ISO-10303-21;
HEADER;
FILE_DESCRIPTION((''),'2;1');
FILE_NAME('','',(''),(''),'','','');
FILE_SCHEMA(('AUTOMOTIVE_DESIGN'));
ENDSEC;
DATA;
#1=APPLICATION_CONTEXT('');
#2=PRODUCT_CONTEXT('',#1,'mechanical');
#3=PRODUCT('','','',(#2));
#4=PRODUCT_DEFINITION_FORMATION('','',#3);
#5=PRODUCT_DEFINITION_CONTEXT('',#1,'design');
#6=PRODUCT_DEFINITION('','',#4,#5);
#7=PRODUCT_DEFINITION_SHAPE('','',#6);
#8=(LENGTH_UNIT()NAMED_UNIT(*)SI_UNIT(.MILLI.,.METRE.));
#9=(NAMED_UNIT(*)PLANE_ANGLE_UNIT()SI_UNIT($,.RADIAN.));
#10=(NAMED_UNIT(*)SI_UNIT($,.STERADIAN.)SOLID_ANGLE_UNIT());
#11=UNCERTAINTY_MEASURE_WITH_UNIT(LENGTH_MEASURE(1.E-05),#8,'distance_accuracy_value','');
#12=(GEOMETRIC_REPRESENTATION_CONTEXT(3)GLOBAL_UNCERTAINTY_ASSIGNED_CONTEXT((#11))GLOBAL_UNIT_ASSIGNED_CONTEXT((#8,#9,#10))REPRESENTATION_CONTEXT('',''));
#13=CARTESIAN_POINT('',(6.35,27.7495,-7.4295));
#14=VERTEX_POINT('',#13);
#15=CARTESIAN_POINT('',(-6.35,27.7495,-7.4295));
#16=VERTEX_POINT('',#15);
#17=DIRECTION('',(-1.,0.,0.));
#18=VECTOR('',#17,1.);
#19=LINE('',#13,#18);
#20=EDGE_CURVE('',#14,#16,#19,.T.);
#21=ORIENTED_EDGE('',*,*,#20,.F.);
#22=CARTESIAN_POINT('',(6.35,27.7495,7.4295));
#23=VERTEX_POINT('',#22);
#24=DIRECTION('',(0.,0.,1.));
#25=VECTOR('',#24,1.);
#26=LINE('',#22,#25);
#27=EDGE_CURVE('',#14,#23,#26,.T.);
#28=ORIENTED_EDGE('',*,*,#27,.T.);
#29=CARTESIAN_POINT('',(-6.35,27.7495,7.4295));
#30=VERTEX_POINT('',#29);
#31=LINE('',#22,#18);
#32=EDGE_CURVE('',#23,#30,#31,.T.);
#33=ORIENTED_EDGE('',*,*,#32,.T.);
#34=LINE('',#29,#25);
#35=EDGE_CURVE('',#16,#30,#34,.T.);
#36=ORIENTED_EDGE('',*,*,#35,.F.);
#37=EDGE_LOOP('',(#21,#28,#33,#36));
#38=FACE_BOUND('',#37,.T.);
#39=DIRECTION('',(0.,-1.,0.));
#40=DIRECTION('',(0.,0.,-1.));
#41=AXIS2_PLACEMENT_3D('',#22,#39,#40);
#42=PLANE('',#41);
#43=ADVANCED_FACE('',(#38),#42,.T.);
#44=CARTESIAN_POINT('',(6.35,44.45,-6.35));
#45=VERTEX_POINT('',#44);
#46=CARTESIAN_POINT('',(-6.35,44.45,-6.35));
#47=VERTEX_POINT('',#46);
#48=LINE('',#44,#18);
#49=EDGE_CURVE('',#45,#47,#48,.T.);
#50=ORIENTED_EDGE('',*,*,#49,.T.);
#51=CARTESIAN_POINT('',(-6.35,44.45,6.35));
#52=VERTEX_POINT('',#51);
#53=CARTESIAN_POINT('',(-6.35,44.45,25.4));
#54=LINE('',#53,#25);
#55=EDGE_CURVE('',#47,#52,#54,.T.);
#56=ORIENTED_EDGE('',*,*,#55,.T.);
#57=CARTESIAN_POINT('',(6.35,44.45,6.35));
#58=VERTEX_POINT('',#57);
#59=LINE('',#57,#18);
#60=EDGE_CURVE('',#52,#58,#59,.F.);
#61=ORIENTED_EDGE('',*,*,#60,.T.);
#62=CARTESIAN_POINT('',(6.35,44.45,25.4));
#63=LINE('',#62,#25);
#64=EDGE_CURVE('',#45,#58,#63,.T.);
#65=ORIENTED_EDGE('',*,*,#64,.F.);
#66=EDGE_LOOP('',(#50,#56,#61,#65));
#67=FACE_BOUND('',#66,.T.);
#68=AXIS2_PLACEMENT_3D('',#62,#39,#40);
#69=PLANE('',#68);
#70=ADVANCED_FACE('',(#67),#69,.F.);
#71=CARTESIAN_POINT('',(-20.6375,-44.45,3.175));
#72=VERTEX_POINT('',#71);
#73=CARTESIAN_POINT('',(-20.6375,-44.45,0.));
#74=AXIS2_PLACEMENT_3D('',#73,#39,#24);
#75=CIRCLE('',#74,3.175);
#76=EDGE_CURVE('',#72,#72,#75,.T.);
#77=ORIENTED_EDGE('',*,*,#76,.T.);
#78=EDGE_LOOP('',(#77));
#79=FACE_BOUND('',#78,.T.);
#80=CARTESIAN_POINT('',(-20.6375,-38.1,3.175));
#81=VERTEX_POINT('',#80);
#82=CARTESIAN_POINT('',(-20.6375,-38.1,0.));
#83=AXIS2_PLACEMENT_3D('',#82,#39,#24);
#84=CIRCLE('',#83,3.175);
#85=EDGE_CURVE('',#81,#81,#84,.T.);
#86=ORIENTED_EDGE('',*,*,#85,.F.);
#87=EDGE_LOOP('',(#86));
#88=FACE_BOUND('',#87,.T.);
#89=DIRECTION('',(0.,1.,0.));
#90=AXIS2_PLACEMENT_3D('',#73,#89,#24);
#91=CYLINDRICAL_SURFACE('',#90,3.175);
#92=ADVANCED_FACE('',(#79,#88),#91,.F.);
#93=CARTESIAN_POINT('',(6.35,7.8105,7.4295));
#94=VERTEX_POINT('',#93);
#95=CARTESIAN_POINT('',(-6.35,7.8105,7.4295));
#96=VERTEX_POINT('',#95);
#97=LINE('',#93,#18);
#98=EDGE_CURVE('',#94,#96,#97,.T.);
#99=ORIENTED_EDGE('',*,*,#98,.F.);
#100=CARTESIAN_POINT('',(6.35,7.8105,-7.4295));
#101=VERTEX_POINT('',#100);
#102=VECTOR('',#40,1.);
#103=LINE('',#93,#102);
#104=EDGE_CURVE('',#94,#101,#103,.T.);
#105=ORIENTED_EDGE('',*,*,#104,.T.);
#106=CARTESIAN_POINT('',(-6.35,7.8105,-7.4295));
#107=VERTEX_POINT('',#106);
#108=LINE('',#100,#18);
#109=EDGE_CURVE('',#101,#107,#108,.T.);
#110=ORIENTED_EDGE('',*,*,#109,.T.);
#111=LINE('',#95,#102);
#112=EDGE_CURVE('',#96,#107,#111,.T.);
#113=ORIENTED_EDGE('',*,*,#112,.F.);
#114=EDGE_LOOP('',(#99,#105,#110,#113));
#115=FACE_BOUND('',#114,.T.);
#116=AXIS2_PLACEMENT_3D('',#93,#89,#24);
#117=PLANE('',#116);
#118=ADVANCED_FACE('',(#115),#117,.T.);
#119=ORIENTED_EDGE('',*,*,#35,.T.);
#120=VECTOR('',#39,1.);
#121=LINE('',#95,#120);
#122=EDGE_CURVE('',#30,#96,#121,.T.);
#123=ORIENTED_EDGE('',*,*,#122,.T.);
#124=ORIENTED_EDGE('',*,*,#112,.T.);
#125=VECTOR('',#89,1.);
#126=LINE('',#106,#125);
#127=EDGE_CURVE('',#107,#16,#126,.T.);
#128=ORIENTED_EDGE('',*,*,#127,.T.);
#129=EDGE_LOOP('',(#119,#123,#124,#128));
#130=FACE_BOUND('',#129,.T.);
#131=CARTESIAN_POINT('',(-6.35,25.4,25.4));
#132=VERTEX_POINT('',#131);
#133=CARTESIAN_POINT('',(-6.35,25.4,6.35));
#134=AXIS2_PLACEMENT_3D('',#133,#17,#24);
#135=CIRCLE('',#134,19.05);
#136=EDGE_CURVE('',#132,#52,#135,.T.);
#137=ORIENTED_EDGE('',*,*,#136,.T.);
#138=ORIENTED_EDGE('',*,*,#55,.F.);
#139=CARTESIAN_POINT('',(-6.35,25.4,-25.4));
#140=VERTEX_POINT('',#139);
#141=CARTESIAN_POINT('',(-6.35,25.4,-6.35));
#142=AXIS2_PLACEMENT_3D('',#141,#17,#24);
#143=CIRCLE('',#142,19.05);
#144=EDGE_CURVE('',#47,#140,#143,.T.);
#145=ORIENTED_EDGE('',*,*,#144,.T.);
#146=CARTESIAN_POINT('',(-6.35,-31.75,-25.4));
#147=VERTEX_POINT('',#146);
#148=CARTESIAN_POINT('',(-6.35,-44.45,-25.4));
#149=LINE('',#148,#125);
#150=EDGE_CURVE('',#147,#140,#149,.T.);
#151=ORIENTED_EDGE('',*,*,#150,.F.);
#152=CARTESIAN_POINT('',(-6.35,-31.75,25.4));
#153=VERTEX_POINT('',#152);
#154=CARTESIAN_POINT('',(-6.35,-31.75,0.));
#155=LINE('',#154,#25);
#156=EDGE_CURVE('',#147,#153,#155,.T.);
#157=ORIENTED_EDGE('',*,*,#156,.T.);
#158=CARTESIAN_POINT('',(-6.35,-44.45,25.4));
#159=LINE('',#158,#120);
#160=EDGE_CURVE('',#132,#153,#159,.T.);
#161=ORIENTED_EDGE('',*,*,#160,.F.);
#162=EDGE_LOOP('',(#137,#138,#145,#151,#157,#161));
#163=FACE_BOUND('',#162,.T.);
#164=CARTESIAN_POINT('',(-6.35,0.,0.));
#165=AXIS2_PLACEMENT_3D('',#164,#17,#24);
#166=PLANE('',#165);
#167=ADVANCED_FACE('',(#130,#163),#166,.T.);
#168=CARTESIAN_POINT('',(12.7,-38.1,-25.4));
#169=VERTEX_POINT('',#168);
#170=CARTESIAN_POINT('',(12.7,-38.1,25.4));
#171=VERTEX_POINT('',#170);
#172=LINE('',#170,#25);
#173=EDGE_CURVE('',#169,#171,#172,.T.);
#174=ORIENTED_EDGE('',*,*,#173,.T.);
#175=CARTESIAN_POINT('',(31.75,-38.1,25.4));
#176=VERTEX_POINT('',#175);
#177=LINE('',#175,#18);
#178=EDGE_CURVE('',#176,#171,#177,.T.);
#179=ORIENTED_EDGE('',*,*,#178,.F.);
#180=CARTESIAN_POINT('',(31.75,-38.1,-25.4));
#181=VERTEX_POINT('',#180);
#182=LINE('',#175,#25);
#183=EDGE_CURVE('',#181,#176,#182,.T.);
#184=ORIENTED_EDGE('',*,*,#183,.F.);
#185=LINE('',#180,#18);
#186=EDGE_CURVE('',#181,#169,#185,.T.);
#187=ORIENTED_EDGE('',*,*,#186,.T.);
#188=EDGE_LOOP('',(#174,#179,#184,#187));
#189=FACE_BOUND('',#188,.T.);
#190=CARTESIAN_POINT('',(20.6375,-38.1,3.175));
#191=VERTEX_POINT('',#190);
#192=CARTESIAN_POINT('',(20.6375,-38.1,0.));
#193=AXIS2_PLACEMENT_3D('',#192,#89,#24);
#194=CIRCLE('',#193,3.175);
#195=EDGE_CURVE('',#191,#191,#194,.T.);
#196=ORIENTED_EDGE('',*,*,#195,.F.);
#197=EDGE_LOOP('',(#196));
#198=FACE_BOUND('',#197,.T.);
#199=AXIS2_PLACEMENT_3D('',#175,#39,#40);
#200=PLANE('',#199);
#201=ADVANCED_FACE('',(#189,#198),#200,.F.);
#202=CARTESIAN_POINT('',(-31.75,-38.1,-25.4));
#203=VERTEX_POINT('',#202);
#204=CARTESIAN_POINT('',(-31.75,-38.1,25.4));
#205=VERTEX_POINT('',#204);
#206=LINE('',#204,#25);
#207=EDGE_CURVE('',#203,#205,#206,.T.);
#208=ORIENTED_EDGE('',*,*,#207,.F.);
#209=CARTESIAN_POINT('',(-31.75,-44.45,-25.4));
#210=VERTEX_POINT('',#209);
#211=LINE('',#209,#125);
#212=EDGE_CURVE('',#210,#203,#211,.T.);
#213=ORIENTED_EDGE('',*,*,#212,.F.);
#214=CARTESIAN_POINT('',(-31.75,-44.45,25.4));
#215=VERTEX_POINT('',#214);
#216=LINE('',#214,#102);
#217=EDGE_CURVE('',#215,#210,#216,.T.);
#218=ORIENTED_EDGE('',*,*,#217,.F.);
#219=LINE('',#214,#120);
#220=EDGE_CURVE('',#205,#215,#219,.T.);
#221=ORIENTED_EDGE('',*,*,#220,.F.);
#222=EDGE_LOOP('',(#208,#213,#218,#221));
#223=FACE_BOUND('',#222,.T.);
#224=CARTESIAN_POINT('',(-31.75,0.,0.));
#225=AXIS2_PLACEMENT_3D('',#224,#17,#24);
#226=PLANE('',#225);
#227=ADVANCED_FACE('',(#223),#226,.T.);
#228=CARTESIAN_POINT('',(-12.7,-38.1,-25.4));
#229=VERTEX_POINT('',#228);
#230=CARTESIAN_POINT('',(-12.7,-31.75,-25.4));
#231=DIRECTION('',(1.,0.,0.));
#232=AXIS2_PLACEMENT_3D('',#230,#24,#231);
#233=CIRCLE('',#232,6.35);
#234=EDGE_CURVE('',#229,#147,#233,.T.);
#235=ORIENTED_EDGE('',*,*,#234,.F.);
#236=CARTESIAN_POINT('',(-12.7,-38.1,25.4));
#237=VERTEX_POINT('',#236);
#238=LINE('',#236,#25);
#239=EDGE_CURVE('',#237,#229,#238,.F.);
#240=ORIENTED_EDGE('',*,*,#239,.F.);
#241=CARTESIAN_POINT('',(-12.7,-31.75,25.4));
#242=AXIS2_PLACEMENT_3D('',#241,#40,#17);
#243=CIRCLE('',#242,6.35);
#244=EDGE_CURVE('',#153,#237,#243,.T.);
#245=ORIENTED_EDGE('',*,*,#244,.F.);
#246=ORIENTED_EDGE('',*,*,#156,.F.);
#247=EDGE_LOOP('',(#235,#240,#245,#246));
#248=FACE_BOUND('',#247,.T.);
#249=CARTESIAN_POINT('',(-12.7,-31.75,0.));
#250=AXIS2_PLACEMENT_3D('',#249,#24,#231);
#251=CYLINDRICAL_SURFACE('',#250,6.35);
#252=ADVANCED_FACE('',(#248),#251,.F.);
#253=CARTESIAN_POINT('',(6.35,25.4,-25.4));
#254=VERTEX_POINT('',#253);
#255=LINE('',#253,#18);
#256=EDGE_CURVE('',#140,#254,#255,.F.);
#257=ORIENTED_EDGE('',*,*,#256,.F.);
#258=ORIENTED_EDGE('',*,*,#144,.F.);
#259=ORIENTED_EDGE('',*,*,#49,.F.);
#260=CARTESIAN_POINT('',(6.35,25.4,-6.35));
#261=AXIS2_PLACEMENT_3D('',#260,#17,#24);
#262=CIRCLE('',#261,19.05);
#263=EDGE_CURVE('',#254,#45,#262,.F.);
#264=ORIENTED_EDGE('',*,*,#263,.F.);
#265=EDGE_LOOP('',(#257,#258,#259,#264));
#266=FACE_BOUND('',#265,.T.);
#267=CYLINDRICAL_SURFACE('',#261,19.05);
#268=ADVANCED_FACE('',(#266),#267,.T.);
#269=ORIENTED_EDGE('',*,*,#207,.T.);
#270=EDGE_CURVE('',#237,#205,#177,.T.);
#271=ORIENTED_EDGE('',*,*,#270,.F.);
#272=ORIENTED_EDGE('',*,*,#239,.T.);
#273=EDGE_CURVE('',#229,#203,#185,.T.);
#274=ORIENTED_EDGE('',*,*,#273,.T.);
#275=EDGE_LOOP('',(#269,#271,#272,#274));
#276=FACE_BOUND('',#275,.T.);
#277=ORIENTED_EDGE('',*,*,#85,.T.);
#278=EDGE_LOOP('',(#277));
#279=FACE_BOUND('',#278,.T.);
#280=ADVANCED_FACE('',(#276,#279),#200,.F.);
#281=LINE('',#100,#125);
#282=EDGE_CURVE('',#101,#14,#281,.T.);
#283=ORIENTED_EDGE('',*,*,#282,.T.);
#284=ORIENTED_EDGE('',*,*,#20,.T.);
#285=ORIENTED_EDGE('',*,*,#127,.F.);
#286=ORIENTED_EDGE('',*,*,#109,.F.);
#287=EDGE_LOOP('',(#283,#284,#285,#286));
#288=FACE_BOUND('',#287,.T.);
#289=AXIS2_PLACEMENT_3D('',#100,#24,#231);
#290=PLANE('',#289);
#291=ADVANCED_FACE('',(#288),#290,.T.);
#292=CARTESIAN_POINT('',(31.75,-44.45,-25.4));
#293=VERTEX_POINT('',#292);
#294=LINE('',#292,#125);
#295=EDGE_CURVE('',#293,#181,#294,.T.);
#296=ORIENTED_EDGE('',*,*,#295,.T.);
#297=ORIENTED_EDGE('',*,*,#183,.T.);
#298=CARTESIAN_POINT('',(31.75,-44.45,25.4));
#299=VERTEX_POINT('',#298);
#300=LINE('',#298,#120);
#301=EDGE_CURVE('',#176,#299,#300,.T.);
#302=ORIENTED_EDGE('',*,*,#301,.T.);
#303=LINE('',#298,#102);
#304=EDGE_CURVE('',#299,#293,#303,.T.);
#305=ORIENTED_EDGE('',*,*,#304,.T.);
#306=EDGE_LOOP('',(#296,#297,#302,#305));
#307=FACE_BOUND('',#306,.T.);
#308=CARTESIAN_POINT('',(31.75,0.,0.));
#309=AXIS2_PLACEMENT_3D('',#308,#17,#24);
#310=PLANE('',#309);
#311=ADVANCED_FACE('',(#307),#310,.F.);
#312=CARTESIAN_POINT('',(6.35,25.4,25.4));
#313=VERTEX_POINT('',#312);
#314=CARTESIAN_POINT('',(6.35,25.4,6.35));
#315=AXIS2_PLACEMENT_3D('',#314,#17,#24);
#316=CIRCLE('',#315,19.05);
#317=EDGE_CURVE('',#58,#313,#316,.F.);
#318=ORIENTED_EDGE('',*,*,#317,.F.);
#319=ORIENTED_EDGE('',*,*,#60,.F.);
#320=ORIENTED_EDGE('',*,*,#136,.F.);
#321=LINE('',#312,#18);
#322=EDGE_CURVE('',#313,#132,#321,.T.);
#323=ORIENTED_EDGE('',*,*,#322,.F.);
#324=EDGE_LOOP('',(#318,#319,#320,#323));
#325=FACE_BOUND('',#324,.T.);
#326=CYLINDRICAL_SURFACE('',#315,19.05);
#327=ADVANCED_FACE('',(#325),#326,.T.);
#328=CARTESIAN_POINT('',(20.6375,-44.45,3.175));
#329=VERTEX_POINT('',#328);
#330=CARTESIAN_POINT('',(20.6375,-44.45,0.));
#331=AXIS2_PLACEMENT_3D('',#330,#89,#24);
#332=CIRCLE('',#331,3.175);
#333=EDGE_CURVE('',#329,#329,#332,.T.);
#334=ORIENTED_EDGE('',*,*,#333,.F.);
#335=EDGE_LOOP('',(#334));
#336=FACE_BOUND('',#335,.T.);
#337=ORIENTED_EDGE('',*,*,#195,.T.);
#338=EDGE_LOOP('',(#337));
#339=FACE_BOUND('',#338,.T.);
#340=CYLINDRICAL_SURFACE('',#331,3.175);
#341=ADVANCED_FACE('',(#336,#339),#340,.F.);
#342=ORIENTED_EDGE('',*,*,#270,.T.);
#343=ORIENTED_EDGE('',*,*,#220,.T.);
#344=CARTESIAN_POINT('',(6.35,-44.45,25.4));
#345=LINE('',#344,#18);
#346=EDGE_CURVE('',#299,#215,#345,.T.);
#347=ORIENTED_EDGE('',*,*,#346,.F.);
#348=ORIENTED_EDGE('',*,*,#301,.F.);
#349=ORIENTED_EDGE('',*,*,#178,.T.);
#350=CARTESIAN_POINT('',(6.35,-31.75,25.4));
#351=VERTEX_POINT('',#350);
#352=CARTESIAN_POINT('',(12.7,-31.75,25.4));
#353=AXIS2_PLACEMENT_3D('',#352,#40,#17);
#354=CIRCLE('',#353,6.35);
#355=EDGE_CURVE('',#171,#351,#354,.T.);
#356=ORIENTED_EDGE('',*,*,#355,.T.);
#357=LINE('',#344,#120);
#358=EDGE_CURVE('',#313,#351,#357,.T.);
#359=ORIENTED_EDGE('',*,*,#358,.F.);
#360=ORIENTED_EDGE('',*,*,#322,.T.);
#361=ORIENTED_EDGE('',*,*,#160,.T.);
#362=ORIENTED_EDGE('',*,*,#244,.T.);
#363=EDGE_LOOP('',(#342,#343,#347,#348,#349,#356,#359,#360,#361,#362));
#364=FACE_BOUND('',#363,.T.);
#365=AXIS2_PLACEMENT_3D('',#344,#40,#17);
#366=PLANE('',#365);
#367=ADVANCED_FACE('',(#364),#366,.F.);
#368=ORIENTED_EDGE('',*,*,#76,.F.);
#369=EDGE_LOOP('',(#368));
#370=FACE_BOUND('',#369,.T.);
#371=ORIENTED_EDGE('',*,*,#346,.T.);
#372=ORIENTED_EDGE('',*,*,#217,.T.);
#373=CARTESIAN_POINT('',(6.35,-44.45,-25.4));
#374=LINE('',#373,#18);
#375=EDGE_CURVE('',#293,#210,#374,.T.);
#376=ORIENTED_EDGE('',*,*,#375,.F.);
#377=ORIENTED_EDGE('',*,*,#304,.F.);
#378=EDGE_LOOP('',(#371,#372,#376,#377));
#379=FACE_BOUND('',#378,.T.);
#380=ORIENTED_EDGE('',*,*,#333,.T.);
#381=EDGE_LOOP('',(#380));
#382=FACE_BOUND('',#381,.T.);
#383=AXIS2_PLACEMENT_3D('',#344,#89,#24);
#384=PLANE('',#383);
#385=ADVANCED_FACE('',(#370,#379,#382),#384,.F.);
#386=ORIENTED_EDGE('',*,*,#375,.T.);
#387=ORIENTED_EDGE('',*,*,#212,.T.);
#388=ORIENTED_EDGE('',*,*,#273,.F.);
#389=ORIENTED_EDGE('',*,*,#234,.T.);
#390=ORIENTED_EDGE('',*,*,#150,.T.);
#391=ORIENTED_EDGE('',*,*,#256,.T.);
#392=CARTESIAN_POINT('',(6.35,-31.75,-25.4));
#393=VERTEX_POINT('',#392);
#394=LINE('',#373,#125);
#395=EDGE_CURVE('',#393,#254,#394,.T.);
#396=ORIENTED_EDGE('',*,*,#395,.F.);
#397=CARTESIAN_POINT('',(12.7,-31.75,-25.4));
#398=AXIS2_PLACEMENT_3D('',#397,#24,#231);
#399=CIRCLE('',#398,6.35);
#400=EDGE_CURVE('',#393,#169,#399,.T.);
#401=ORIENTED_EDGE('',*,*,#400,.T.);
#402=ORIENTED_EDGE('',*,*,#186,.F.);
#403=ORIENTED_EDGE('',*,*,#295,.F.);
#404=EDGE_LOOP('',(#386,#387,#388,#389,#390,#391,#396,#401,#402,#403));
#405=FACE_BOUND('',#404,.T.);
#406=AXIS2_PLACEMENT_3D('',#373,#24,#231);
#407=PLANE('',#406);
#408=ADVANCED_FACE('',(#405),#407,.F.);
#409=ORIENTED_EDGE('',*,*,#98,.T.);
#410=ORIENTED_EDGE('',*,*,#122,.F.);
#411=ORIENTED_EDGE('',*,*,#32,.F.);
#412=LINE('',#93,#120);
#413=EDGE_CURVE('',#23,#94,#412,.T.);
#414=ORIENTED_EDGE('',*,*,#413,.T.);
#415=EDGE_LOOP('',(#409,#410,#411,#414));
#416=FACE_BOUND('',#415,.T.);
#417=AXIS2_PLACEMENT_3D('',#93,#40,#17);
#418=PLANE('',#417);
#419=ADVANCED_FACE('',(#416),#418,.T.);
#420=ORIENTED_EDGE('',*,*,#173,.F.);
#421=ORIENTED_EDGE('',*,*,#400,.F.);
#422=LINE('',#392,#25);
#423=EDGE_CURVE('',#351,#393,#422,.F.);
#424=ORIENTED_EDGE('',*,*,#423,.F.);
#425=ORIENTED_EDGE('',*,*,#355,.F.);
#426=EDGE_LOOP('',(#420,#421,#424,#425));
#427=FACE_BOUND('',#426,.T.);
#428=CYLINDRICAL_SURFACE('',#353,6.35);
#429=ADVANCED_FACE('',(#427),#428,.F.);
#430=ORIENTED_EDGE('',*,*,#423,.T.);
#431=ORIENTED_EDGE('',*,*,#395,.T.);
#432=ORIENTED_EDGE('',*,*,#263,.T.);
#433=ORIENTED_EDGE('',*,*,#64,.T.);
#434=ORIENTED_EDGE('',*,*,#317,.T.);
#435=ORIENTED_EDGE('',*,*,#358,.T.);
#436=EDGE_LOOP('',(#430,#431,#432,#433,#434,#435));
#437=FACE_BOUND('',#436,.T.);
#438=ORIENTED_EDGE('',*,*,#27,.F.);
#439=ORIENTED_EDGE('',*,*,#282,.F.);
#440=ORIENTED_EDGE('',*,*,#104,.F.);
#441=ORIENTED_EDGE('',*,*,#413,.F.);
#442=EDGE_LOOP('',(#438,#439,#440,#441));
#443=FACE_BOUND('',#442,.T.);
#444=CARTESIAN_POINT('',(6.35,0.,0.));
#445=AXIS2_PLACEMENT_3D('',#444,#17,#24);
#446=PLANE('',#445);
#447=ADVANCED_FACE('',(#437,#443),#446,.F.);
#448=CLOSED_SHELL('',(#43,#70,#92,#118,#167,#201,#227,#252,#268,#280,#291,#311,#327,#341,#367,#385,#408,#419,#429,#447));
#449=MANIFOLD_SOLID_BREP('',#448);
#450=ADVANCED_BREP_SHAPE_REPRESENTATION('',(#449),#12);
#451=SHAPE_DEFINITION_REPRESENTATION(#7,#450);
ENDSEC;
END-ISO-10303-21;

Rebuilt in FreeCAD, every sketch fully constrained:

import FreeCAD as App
import Part
import Sketcher
Q = App.Units.Quantity


def edges_at(feature, points):
    """Names of the edges that pass closest to the given points."""
    edges = feature.Shape.Edges
    near = lambda p: min(range(len(edges)), key=lambda i: edges[i].distToShape(Part.Vertex(*p))[0])
    return sorted({f"Edge{near(p) + 1}" for p in points})


def add_polygon(sketch, points):
    """Adds a closed chain of lines whose ends are joined by coincident constraints."""
    first, n = sketch.GeometryCount, len(points)
    for a, b in zip(points, points[1:] + points[:1]):
        sketch.addGeometry(Part.LineSegment(App.Vector(*a, 0), App.Vector(*b, 0)), False)
    for i in range(n):
        sketch.addConstraint(Sketcher.Constraint("Coincident", first + i, 2, first + (i + 1) % n, 1))

doc = App.newDocument("Part")
body = doc.addObject("PartDesign::Body", "Body")

# Sketch on YZ plane
sketch1 = doc.addObject("Sketcher::SketchObject", "Sketch")
body.addObject(sketch1)
sketch1.AttachmentSupport = (doc.YZ_Plane, [""])
sketch1.MapMode = "FlatFace"
add_polygon(sketch1, [(44, 25), (-44, 25), (-44, -25), (44, -25)])  # lines 0-3
add_polygon(sketch1, [(8, -7), (8, 7), (28, 7), (28, -7)])  # lines 4-7
sketch1.addConstraint([
    Sketcher.Constraint("Horizontal", 0),
    Sketcher.Constraint("Vertical", 1),
    Sketcher.Constraint("Horizontal", 2),
    Sketcher.Constraint("Vertical", 3),
    Sketcher.Constraint("Vertical", 4),
    Sketcher.Constraint("Horizontal", 5),
    Sketcher.Constraint("Vertical", 6),
    Sketcher.Constraint("Horizontal", 7),
    Sketcher.Constraint("Symmetric", 0, 2, 2, 2, -1, 1),
    Sketcher.Constraint("DistanceY", 1, 2, 1, 1, Q("2 in")),
    Sketcher.Constraint("DistanceX", 0, 2, 0, 1, Q("3.5 in")),
    Sketcher.Constraint("DistanceX", 5, 1, 5, 2, Q("0.785 in")),
    Sketcher.Constraint("DistanceY", 4, 1, 4, 2, Q("0.585 in")),
    Sketcher.Constraint("DistanceX", -1, 1, 4, 2, Q("0.3075 in")),
    Sketcher.Constraint("DistanceY", -1, 1, 4, 2, Q("0.2925 in")),
])
pad1 = doc.addObject("PartDesign::Pad", "Pad")
body.addObject(pad1)
pad1.Profile = sketch1
pad1.Length = Q("0.5 in")
pad1.Midplane = True

# Sketch on YZ plane
sketch2 = doc.addObject("Sketcher::SketchObject", "Sketch001")
body.addObject(sketch2)
sketch2.AttachmentSupport = (doc.YZ_Plane, [""])
sketch2.MapMode = "FlatFace"
add_polygon(sketch2, [(-38, 25), (-44, 25), (-44, -25), (-38, -25)])  # lines 0-3
sketch2.addConstraint([
    Sketcher.Constraint("Horizontal", 0),
    Sketcher.Constraint("Vertical", 1),
    Sketcher.Constraint("Horizontal", 2),
    Sketcher.Constraint("Vertical", 3),
    Sketcher.Constraint("DistanceY", 1, 2, 1, 1, Q("2 in")),
    Sketcher.Constraint("DistanceY", -1, 1, 0, 2, Q("1 in")),
    Sketcher.Constraint("DistanceX", 0, 2, 0, 1, Q("0.25 in")),
    Sketcher.Constraint("DistanceX", 2, 2, -1, 1, Q("1.5 in")),
])
pad2 = doc.addObject("PartDesign::Pad", "Pad001")
body.addObject(pad2)
pad2.Profile = sketch2
pad2.Length = Q("2.5 in")
pad2.Midplane = True
doc.recompute()

fillet = doc.addObject("PartDesign::Fillet", "Fillet")
body.addObject(fillet)
fillet.Base = (pad2, edges_at(pad2, [(6.35, -38.1, 0), (-6.35, -38.1, 0)]))
fillet.Radius = Q("0.25 in")

# Sketch on XZ plane
sketch3 = doc.addObject("Sketcher::SketchObject", "Sketch002")
body.addObject(sketch3)
sketch3.AttachmentSupport = (doc.XZ_Plane, [""])
sketch3.MapMode = "FlatFace"
sketch3.AttachmentOffset = App.Placement(App.Vector(0, 0, 1.5 * 25.4), App.Rotation())
sketch3.addGeometry(Part.Circle(App.Vector(20.6, 0, 0), App.Vector(0, 0, 1), 3.2), False)
sketch3.addConstraint([
    Sketcher.Constraint("PointOnObject", 0, 3, -1),
    Sketcher.Constraint("Diameter", 0, Q("0.25 in")),
    Sketcher.Constraint("DistanceX", -1, 1, 0, 3, Q("0.8125 in")),
])
pocket1 = doc.addObject("PartDesign::Pocket", "Pocket")
body.addObject(pocket1)
pocket1.Profile = sketch3
pocket1.Type = "ThroughAll"
pocket1.Reversed = True
doc.recompute()

mirrored = doc.addObject("PartDesign::Mirrored", "Mirrored")
body.addObject(mirrored)
mirrored.Originals = [pocket1]
mirrored.MirrorPlane = (doc.YZ_Plane, [""])
body.Tip = mirrored
doc.recompute()

fillet2 = doc.addObject("PartDesign::Fillet", "Fillet001")
body.addObject(fillet2)
fillet2.Base = (mirrored, edges_at(mirrored, [(0, 44.45, 25.4), (0, 44.45, -25.4)]))
fillet2.Radius = Q("0.75 in")

doc.recompute()
